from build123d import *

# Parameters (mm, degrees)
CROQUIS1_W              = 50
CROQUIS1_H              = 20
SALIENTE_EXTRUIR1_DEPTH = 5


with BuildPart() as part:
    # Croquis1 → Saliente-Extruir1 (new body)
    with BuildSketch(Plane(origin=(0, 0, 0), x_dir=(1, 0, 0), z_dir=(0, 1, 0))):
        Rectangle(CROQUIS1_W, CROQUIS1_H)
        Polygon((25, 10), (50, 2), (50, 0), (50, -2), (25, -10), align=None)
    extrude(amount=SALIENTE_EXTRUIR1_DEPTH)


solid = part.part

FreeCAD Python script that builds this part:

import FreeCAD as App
import Part
import Sketcher
from FreeCAD import Vector

doc = App.newDocument("Part")
body = doc.addObject("PartDesign::Body", "Body")

sketch1 = doc.addObject("Sketcher::SketchObject", "Sketch")
body.addObject(sketch1)
sketch1.AttachmentSupport = (doc.XZ_Plane, [""])
sketch1.MapMode = "FlatFace"
sketch1.addGeometry([
    Part.LineSegment(Vector(-25, -10, 0), Vector(-25, 10, 0)),
    Part.LineSegment(Vector(-25, 10, 0), Vector(25, 10, 0)),
    Part.LineSegment(Vector(25, 10, 0), Vector(50, 2, 0)),
    Part.LineSegment(Vector(50, 2, 0), Vector(50, -2, 0)),
    Part.LineSegment(Vector(50, -2, 0), Vector(25, -10, 0)),
    Part.LineSegment(Vector(25, -10, 0), Vector(-25, -10, 0)),
], False)
sketch1.addConstraint([
    Sketcher.Constraint("Coincident", 0, 2, 1, 1),
    Sketcher.Constraint("Coincident", 1, 2, 2, 1),
    Sketcher.Constraint("Coincident", 2, 2, 3, 1),
    Sketcher.Constraint("Coincident", 3, 2, 4, 1),
    Sketcher.Constraint("Coincident", 4, 2, 5, 1),
    Sketcher.Constraint("Coincident", 5, 2, 0, 1),
    Sketcher.Constraint("Vertical", 0),
    Sketcher.Constraint("Horizontal", 1),
    Sketcher.Constraint("Vertical", 3),
    Sketcher.Constraint("Horizontal", 5),
    Sketcher.Constraint("Symmetric", 0, 2, 4, 2, -1, 1),
    Sketcher.Constraint("Vertical", 1, 2, 4, 2),
    Sketcher.Constraint("Equal", 2, 4),
    Sketcher.Constraint("DistanceX", 1, 1, 1, 2, 50.0),
    Sketcher.Constraint("DistanceY", 0, 1, 0, 2, 20.0),
    Sketcher.Constraint("DistanceY", 3, 2, 3, 1, 4.0),
    Sketcher.Constraint("DistanceX", -1, 1, 2, 2, 50.0),
])
pad1 = doc.addObject("PartDesign::Pad", "Pad")
body.addObject(pad1)
pad1.Profile = sketch1
pad1.Length = 5
pad1.Reversed = True

doc.recompute()
